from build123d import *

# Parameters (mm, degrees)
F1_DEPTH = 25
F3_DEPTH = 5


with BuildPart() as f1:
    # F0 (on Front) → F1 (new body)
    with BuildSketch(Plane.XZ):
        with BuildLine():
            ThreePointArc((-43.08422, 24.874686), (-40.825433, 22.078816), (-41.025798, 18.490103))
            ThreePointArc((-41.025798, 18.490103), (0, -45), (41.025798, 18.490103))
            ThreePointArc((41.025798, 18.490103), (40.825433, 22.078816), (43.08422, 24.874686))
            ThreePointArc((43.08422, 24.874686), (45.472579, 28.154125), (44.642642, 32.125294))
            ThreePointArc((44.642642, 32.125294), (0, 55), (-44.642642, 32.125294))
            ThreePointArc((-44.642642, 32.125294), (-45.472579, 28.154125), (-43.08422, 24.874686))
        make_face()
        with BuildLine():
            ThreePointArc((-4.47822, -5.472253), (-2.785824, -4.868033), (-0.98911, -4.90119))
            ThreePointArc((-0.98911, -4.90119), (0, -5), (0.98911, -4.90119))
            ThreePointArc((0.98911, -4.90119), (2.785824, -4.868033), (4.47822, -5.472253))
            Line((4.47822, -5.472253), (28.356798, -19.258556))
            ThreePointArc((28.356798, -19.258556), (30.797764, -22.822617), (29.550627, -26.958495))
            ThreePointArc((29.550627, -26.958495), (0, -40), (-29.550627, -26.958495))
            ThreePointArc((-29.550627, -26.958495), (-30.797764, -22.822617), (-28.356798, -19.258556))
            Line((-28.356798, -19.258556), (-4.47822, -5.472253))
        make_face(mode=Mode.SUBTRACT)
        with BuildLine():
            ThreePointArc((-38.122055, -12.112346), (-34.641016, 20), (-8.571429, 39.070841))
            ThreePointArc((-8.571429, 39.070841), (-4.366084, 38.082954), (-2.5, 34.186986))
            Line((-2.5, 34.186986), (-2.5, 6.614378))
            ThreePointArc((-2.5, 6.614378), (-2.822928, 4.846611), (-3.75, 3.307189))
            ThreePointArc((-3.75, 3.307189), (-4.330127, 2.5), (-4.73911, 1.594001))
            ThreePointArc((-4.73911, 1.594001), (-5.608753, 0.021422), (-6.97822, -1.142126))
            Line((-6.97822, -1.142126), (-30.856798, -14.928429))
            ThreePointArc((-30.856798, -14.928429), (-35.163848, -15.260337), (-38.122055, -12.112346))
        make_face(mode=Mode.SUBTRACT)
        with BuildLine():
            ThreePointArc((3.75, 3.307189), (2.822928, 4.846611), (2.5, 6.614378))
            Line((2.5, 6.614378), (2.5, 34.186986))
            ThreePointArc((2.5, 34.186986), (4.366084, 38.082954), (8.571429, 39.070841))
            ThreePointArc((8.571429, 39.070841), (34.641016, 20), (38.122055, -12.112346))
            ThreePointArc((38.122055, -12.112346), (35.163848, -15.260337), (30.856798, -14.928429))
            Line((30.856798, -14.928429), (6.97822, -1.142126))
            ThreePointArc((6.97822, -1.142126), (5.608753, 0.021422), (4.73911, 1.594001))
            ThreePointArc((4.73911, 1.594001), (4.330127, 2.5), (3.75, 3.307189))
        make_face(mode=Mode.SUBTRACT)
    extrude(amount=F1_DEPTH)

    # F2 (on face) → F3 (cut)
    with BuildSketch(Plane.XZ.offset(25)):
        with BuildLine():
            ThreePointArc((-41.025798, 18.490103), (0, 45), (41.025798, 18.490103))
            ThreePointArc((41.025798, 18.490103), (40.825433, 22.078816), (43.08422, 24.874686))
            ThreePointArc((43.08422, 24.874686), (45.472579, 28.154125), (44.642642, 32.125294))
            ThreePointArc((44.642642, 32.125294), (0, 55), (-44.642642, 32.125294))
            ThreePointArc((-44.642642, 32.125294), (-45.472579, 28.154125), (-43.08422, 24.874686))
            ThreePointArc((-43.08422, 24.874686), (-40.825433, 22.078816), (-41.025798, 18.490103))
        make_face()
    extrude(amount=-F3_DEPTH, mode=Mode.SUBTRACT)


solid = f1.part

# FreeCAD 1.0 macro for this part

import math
import FreeCAD as App
import Part
import Sketcher
from FreeCAD import Vector
Q = App.Units.Quantity

doc = App.newDocument("Part")
body = doc.addObject("PartDesign::Body", "Body")

# Sketch on XZ plane
sketch1 = body.newObject("Sketcher::SketchObject", "Sketch")
sketch1.AttachmentSupport = (doc.getObject("XZ_Plane"), [""])
sketch1.MapMode = "FlatFace"
sketch1.addGeometry(Part.ArcOfCircle(Part.Circle(Vector(-45.584221, 20.544559, 0), Vector(0, 0, 1), 5.000001), math.radians(-24.260824), math.radians(59.999995)), False)
sketch1.addGeometry(Part.ArcOfCircle(Part.Circle(Vector(0, 0, 0), Vector(0, 0, 1), 45), math.radians(155.739171), math.radians(384.260829)), False)
sketch1.addGeometry(Part.ArcOfCircle(Part.Circle(Vector(45.584221, 20.544559, 0), Vector(0, 0, 1), 5.000001), math.radians(120.000005), math.radians(204.260824)), False)
sketch1.addGeometry(Part.ArcOfCircle(Part.Circle(Vector(40.58422, 29.204813, 0), Vector(0, 0, 1), 5), math.radians(-59.999999), math.radians(35.739168)), False)
sketch1.addGeometry(Part.ArcOfCircle(Part.Circle(Vector(0, 0, 0), Vector(0, 0, 1), 55), math.radians(35.73917), math.radians(144.26083)), False)
sketch1.addGeometry(Part.ArcOfCircle(Part.Circle(Vector(-40.58422, 29.204813, 0), Vector(0, 0, 1), 5), math.radians(144.260832), math.radians(239.999999)), False)
sketch1.addGeometry(Part.LineSegment(Vector(-28.356798, -19.258556, 0), Vector(-4.47822, -5.472253, 0)), False)
sketch1.addGeometry(Part.ArcOfCircle(Part.Circle(Vector(-1.978221, -9.802374, 0), Vector(0, 0, 1), 4.999995), math.radians(78.590357), math.radians(120.000026)), False)
sketch1.addGeometry(Part.ArcOfCircle(Part.Circle(Vector(0, 0.00001, 0), Vector(0, 0, 1), 5.00001), math.radians(-101.409601), math.radians(-78.590399)), False)
sketch1.addGeometry(Part.ArcOfCircle(Part.Circle(Vector(1.978221, -9.802374, 0), Vector(0, 0, 1), 4.999995), math.radians(59.999974), math.radians(101.409643)), False)
sketch1.addGeometry(Part.LineSegment(Vector(4.47822, -5.472253, 0), Vector(28.356798, -19.258556, 0)), False)
sketch1.addGeometry(Part.ArcOfCircle(Part.Circle(Vector(25.856798, -23.588683, 0), Vector(0, 0, 1), 5), math.radians(-42.373616), math.radians(60.000001)), False)
sketch1.addGeometry(Part.ArcOfCircle(Part.Circle(Vector(0, 0, 0), Vector(0, 0, 1), 40), math.radians(-137.626375), math.radians(-42.373625)), False)
sketch1.addGeometry(Part.ArcOfCircle(Part.Circle(Vector(-25.856798, -23.588683, 0), Vector(0, 0, 1), 5), math.radians(119.999999), math.radians(222.373616)), False)
sketch1.addGeometry(Part.ArcOfCircle(Part.Circle(Vector(-33.356798, -10.598302, 0), Vector(0, 0, 1), 5), math.radians(-162.373611), math.radians(-60.000002)), False)
sketch1.addGeometry(Part.ArcOfCircle(Part.Circle(Vector(0.000001, 0, 0), Vector(0, 0, 1), 40.000001), math.radians(102.373626), math.radians(197.626375)), False)
sketch1.addGeometry(Part.ArcOfCircle(Part.Circle(Vector(-7.500001, 34.186985, 0), Vector(0, 0, 1), 5.000001), math.radians(0.000009), math.radians(102.373621)), False)
sketch1.addGeometry(Part.LineSegment(Vector(-2.5, 34.186986, 0), Vector(-2.5, 6.614378, 0)), False)
sketch1.addGeometry(Part.ArcOfCircle(Part.Circle(Vector(-7.499995, 6.614376, 0), Vector(0, 0, 1), 4.999995), math.radians(-41.409642), math.radians(0.000018)), False)
sketch1.addGeometry(Part.ArcOfCircle(Part.Circle(Vector(0.000004, -0.000004, 0), Vector(0, 0, 1), 5.000006), math.radians(138.590381), math.radians(161.409596)), False)
sketch1.addGeometry(Part.ArcOfCircle(Part.Circle(Vector(-9.478223, 3.188003, 0), Vector(0, 0, 1), 5.000003), math.radians(-59.999985), math.radians(-18.590384)), False)
sketch1.addGeometry(Part.LineSegment(Vector(-6.97822, -1.142126, 0), Vector(-30.856798, -14.928429, 0)), False)
sketch1.addGeometry(Part.ArcOfCircle(Part.Circle(Vector(-0.000004, -0.000004, 0), Vector(0, 0, 1), 5.000006), math.radians(18.590404), math.radians(41.409619)), False)
sketch1.addGeometry(Part.ArcOfCircle(Part.Circle(Vector(7.499995, 6.614376, 0), Vector(0, 0, 1), 4.999995), math.radians(179.999982), math.radians(221.409642)), False)
sketch1.addGeometry(Part.LineSegment(Vector(2.5, 6.614378, 0), Vector(2.5, 34.186986, 0)), False)
sketch1.addGeometry(Part.ArcOfCircle(Part.Circle(Vector(7.500001, 34.186985, 0), Vector(0, 0, 1), 5.000001), math.radians(77.626379), math.radians(179.999991)), False)
sketch1.addGeometry(Part.ArcOfCircle(Part.Circle(Vector(-0.000001, 0, 0), Vector(0, 0, 1), 40.000001), math.radians(-17.626375), math.radians(77.626374)), False)
sketch1.addGeometry(Part.ArcOfCircle(Part.Circle(Vector(33.356798, -10.598302, 0), Vector(0, 0, 1), 5), math.radians(-119.999998), math.radians(-17.626389)), False)
sketch1.addGeometry(Part.LineSegment(Vector(30.856798, -14.928429, 0), Vector(6.97822, -1.142126, 0)), False)
sketch1.addGeometry(Part.ArcOfCircle(Part.Circle(Vector(9.478223, 3.188003, 0), Vector(0, 0, 1), 5.000003), math.radians(-161.409616), math.radians(-120.000015)), False)
sketch1.addConstraint(Sketcher.Constraint("Tangent", 0, 1, 1, 1))
sketch1.addConstraint(Sketcher.Constraint("Tangent", 1, 2, 2, 2))
sketch1.addConstraint(Sketcher.Constraint("Tangent", 2, 1, 3, 1))
sketch1.addConstraint(Sketcher.Constraint("Tangent", 3, 2, 4, 1))
sketch1.addConstraint(Sketcher.Constraint("Tangent", 4, 2, 5, 1))
sketch1.addConstraint(Sketcher.Constraint("Tangent", 5, 2, 0, 2))
sketch1.addConstraint(Sketcher.Constraint("Tangent", 6, 2, 7, 2))
sketch1.addConstraint(Sketcher.Constraint("Tangent", 7, 1, 8, 1))
sketch1.addConstraint(Sketcher.Constraint("Tangent", 8, 2, 9, 2))
sketch1.addConstraint(Sketcher.Constraint("Tangent", 9, 1, 10, 1))
sketch1.addConstraint(Sketcher.Constraint("Tangent", 10, 2, 11, 2))
sketch1.addConstraint(Sketcher.Constraint("Tangent", 11, 1, 12, 2))
sketch1.addConstraint(Sketcher.Constraint("Tangent", 12, 1, 13, 2))
sketch1.addConstraint(Sketcher.Constraint("Tangent", 13, 1, 6, 1))
sketch1.addConstraint(Sketcher.Constraint("Tangent", 14, 1, 15, 2))
sketch1.addConstraint(Sketcher.Constraint("Tangent", 15, 1, 16, 2))
sketch1.addConstraint(Sketcher.Constraint("Tangent", 16, 1, 17, 1))
sketch1.addConstraint(Sketcher.Constraint("Tangent", 17, 2, 18, 2))
sketch1.addConstraint(Sketcher.Constraint("Tangent", 18, 1, 19, 1))
sketch1.addConstraint(Sketcher.Constraint("Tangent", 19, 2, 20, 2))
sketch1.addConstraint(Sketcher.Constraint("Tangent", 20, 1, 21, 1))
sketch1.addConstraint(Sketcher.Constraint("Tangent", 21, 2, 14, 2))
sketch1.addConstraint(Sketcher.Constraint("Tangent", 22, 2, 23, 2))
sketch1.addConstraint(Sketcher.Constraint("Tangent", 23, 1, 24, 1))
sketch1.addConstraint(Sketcher.Constraint("Tangent", 24, 2, 25, 2))
sketch1.addConstraint(Sketcher.Constraint("Tangent", 25, 1, 26, 2))
sketch1.addConstraint(Sketcher.Constraint("Tangent", 26, 1, 27, 2))
sketch1.addConstraint(Sketcher.Constraint("Tangent", 27, 1, 28, 1))
sketch1.addConstraint(Sketcher.Constraint("Tangent", 28, 2, 29, 2))
sketch1.addConstraint(Sketcher.Constraint("Tangent", 29, 1, 22, 1))
sketch1.addConstraint(Sketcher.Constraint("Vertical", 17))
sketch1.addConstraint(Sketcher.Constraint("Vertical", 24))
sketch1.addConstraint(Sketcher.Constraint("Coincident", 1, 3, -1, 1))
sketch1.addConstraint(Sketcher.Constraint("Coincident", 4, 3, -1, 1))
sketch1.addConstraint(Sketcher.Constraint("Coincident", 12, 3, -1, 1))
sketch1.addConstraint(Sketcher.Constraint("Coincident", 15, 3, -1, 1))
sketch1.addConstraint(Sketcher.Constraint("Coincident", 19, 3, -1, 1))
sketch1.addConstraint(Sketcher.Constraint("Coincident", 22, 3, -1, 1))
sketch1.addConstraint(Sketcher.Constraint("Coincident", 26, 3, -1, 1))
sketch1.addConstraint(Sketcher.Constraint("Equal", 0, 2))
sketch1.addConstraint(Sketcher.Constraint("Equal", 2, 3))
sketch1.addConstraint(Sketcher.Constraint("Equal", 3, 5))
sketch1.addConstraint(Sketcher.Constraint("Equal", 7, 9))
sketch1.addConstraint(Sketcher.Constraint("Equal", 5, 11))
sketch1.addConstraint(Sketcher.Constraint("Equal", 11, 13))
sketch1.addConstraint(Sketcher.Constraint("Equal", 13, 14))
sketch1.addConstraint(Sketcher.Constraint("Equal", 12, 15))
sketch1.addConstraint(Sketcher.Constraint("Equal", 14, 16))
sketch1.addConstraint(Sketcher.Constraint("Equal", 9, 18))
sketch1.addConstraint(Sketcher.Constraint("Equal", 19, 22))
sketch1.addConstraint(Sketcher.Constraint("Equal", 18, 23))
sketch1.addConstraint(Sketcher.Constraint("Equal", 16, 25))
sketch1.addConstraint(Sketcher.Constraint("Equal", 15, 26))
sketch1.addConstraint(Sketcher.Constraint("Equal", 25, 27))
sketch1.addConstraint(Sketcher.Constraint("Equal", 20, 29))
sketch1.addConstraint(Sketcher.Constraint("Symmetric", 7, 3, 9, 3, -2))
sketch1.addConstraint(Sketcher.Constraint("Symmetric", 21, 2, 27, 1, -2))
sketch1.addConstraint(Sketcher.Constraint("Parallel", 6, 21))
sketch1.addConstraint(Sketcher.Constraint("Parallel", 10, 28))
sketch1.addConstraint(Sketcher.Constraint("Horizontal", 0, 3, 2, 3))
sketch1.addConstraint(Sketcher.Constraint("Horizontal", 18, 3, 23, 3))
sketch1.addConstraint(Sketcher.Constraint("Equal", 10, 21))
sketch1.addConstraint(Sketcher.Constraint("Radius", 0, 5.000001))
sketch1.addConstraint(Sketcher.Constraint("Radius", 1, 45.0))
sketch1.addConstraint(Sketcher.Constraint("Radius", 4, 55.0))
sketch1.addConstraint(Sketcher.Constraint("Radius", 12, 40.0))
sketch1.addConstraint(Sketcher.Constraint("Angle", 6, Q("29.999999 deg")))
sketch1.addConstraint(Sketcher.Constraint("DistanceX", 3, 3, 2, 3, 5.000001))
sketch1.addConstraint(Sketcher.Constraint("DistanceX", 16, 3, 25, 3, 15.000001))
sketch1.addConstraint(Sketcher.Constraint("DistanceX", 10, 2, 27, 3, 5.0))
sketch1.addConstraint(Sketcher.Constraint("DistanceX", 6, 2, 7, 3, 2.499999))
sketch1.addConstraint(Sketcher.Constraint("DistanceX", 18, 1, -1, 1, 3.75))
sketch1.addConstraint(Sketcher.Constraint("Radius", 8, 5.00001))
sketch1.addConstraint(Sketcher.Constraint("DistanceY", -1, 1, 19, 2, 1.594001))
sketch1.addConstraint(Sketcher.Constraint("Radius", 20, 5.000003))
pad1 = body.newObject("PartDesign::Pad", "Pad")
pad1.Profile = sketch1
pad1.Length = 25

# Sketch on XZ plane
sketch2 = body.newObject("Sketcher::SketchObject", "Sketch001")
sketch2.AttachmentSupport = (doc.getObject("XZ_Plane"), [""])
sketch2.MapMode = "FlatFace"
sketch2.AttachmentOffset = App.Placement(Vector(0, 0, 25), App.Rotation())
sketch2.addGeometry(Part.ArcOfCircle(Part.Circle(Vector(0, 0, 0), Vector(0, 0, 1), 45), math.radians(24.26083), math.radians(155.73917)), False)
sketch2.addGeometry(Part.ArcOfCircle(Part.Circle(Vector(45.584221, 20.544559, 0), Vector(0, 0, 1), 5.000001), math.radians(120.000005), math.radians(204.260824)), False)
sketch2.addGeometry(Part.ArcOfCircle(Part.Circle(Vector(40.58422, 29.204813, 0), Vector(0, 0, 1), 5), math.radians(-59.999999), math.radians(35.739168)), False)
sketch2.addGeometry(Part.ArcOfCircle(Part.Circle(Vector(0, 0, 0), Vector(0, 0, 1), 55), math.radians(35.73917), math.radians(144.26083)), False)
sketch2.addGeometry(Part.ArcOfCircle(Part.Circle(Vector(-40.58422, 29.204813, 0), Vector(0, 0, 1), 5), math.radians(144.260832), math.radians(239.999999)), False)
sketch2.addGeometry(Part.ArcOfCircle(Part.Circle(Vector(-45.584221, 20.544559, 0), Vector(0, 0, 1), 5.000001), math.radians(-24.260824), math.radians(59.999995)), False)
sketch2.addConstraint(Sketcher.Constraint("Tangent", 0, 1, 1, 2))
sketch2.addConstraint(Sketcher.Constraint("Tangent", 1, 1, 2, 1))
sketch2.addConstraint(Sketcher.Constraint("Tangent", 2, 2, 3, 1))
sketch2.addConstraint(Sketcher.Constraint("Tangent", 3, 2, 4, 1))
sketch2.addConstraint(Sketcher.Constraint("Tangent", 4, 2, 5, 2))
sketch2.addConstraint(Sketcher.Constraint("Tangent", 5, 1, 0, 2))
sketch2.addConstraint(Sketcher.Constraint("Coincident", 0, 3, -1, 1))
sketch2.addConstraint(Sketcher.Constraint("Coincident", 3, 3, -1, 1))
sketch2.addConstraint(Sketcher.Constraint("Equal", 1, 2))
sketch2.addConstraint(Sketcher.Constraint("Equal", 2, 4))
sketch2.addConstraint(Sketcher.Constraint("Equal", 4, 5))
sketch2.addConstraint(Sketcher.Constraint("Horizontal", 2, 3, 4, 3))
sketch2.addConstraint(Sketcher.Constraint("Radius", 0, 45.0))
sketch2.addConstraint(Sketcher.Constraint("Radius", 1, 5.000001))
sketch2.addConstraint(Sketcher.Constraint("Radius", 3, 55.0))
sketch2.addConstraint(Sketcher.Constraint("DistanceX", 2, 3, 1, 3, 5.000001))
pocket1 = body.newObject("PartDesign::Pocket", "Pocket")
pocket1.Profile = sketch2
pocket1.Length = 5

doc.recompute()
